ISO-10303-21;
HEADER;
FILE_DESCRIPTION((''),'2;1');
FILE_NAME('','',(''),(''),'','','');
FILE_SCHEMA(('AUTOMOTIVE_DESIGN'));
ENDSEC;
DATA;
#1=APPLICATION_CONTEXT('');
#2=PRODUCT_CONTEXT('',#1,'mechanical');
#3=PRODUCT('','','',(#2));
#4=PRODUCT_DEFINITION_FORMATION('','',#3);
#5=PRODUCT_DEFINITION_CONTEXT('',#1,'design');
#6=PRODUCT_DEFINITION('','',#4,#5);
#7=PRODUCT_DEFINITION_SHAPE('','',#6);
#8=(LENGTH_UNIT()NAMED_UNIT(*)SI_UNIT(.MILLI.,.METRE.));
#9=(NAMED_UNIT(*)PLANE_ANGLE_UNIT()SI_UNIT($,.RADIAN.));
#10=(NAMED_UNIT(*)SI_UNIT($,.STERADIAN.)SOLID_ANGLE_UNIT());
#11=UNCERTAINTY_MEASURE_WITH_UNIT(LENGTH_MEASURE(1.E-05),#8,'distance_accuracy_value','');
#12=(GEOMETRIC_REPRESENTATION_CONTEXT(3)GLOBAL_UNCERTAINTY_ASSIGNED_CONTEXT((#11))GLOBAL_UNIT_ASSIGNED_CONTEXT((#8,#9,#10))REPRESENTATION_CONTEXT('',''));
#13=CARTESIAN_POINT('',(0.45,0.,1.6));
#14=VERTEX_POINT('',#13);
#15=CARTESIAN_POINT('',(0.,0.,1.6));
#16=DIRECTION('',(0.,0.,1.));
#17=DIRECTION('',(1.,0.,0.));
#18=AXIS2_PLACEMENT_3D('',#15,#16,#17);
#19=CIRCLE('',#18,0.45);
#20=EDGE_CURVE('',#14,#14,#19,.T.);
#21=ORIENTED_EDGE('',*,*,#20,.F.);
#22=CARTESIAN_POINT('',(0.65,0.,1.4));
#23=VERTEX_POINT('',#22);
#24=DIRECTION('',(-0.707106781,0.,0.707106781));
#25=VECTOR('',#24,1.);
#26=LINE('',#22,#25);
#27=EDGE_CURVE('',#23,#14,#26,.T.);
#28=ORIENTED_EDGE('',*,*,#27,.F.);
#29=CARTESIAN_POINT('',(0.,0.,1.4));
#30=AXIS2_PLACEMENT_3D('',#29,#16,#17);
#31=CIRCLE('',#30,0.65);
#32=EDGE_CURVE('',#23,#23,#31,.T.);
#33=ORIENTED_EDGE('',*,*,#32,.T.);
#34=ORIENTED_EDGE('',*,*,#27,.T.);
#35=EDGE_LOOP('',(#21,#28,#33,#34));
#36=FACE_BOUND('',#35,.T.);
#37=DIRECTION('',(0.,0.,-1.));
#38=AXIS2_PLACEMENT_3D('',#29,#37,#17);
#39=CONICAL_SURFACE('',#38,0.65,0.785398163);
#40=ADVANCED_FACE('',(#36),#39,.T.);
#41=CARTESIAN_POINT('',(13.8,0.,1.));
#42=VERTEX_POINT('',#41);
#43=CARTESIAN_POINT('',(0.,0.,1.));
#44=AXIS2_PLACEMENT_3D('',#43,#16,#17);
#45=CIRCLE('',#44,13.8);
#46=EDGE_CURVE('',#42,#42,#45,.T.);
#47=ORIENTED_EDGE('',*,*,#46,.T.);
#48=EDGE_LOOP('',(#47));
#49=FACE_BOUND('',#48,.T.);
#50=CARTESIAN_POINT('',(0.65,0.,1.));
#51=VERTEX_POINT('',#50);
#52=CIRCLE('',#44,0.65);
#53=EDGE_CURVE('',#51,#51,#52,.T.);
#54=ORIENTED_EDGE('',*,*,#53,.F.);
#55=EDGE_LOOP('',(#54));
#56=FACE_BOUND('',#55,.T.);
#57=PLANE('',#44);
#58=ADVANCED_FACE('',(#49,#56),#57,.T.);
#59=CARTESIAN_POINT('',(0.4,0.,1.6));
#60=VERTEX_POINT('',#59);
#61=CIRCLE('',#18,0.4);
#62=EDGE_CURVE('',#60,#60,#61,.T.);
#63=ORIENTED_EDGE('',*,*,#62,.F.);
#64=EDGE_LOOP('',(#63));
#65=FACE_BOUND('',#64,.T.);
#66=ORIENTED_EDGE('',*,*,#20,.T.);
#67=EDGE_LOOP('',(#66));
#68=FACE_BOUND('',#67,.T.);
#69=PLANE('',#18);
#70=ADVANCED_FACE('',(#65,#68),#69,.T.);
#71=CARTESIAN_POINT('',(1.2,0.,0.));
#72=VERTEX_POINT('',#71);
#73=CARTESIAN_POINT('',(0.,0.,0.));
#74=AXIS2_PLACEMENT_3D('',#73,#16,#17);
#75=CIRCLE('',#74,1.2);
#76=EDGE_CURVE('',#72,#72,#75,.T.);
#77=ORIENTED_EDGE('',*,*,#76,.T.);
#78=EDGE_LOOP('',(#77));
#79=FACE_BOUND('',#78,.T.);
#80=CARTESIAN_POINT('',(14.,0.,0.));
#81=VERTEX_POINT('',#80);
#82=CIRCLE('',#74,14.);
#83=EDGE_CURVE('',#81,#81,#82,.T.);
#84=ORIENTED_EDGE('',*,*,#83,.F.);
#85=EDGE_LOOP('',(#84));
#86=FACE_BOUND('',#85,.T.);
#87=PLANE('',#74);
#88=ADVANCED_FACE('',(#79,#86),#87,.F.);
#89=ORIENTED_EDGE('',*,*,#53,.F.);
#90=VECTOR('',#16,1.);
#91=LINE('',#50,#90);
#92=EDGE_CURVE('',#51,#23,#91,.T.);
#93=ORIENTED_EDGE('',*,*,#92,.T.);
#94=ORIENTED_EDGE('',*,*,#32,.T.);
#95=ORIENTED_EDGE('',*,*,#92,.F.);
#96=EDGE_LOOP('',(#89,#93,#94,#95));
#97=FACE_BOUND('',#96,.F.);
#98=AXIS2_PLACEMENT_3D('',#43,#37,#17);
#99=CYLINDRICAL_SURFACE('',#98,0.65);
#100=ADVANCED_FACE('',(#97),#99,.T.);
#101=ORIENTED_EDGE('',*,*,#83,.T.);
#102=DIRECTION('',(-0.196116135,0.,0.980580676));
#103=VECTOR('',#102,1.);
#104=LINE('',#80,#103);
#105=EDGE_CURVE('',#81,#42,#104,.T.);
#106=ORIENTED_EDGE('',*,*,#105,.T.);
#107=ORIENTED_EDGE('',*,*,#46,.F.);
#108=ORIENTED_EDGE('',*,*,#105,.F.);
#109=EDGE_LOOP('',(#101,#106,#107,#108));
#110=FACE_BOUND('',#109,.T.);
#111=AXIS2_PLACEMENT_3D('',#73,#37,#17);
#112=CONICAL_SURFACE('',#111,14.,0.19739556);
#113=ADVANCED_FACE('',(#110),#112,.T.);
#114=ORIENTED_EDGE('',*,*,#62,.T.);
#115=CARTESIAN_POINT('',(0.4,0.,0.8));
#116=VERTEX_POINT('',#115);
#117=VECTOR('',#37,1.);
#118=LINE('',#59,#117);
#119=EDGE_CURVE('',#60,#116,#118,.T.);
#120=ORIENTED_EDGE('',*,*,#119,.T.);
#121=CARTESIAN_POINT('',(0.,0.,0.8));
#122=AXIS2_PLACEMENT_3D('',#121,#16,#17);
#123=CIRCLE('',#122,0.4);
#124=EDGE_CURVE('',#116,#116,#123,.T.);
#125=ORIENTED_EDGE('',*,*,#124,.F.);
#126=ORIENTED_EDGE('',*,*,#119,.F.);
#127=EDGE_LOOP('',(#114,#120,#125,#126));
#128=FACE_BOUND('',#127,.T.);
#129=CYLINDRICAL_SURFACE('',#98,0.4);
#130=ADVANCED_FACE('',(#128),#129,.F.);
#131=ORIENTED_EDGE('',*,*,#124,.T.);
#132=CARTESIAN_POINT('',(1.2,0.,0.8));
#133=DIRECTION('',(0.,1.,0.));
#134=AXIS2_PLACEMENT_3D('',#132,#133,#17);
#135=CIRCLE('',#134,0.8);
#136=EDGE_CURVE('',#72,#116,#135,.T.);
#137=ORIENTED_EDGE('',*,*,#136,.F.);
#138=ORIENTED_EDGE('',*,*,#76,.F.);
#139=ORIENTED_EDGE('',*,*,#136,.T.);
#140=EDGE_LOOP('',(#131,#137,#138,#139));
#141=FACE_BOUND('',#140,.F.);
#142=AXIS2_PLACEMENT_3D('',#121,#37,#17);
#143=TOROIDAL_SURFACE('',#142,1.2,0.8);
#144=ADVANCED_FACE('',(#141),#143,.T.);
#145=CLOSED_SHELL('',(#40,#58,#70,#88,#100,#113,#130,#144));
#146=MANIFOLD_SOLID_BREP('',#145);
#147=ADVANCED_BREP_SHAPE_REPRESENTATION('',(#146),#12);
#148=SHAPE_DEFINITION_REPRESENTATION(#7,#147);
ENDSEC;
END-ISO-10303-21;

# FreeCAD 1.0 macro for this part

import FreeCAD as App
import Part
import Sketcher
Q = App.Units.Quantity


def edges_at(feature, points):
    """Names of the edges that pass closest to the given points."""
    edges = feature.Shape.Edges
    near = lambda p: min(range(len(edges)), key=lambda i: edges[i].distToShape(Part.Vertex(*p))[0])
    return sorted({f"Edge{near(p) + 1}" for p in points})


def add_polygon(sketch, points):
    """Adds a closed chain of lines whose ends are joined by coincident constraints."""
    first, n = sketch.GeometryCount, len(points)
    for a, b in zip(points, points[1:] + points[:1]):
        sketch.addGeometry(Part.LineSegment(App.Vector(*a, 0), App.Vector(*b, 0)), False)
    for i in range(n):
        sketch.addConstraint(Sketcher.Constraint("Coincident", first + i, 2, first + (i + 1) % n, 1))

doc = App.newDocument("Part")
params = doc.addObject("Spreadsheet::Sheet", "Params")
for row, (alias, value) in enumerate([
    ("sketch1_diameter", "0.8 mm"),
    ("pad1_length", "0.6 mm"),
    ("sketch2_diameter", "1.3 mm"),
    ("pad2_length", "0.6 mm"),
    ("chamfer_size", "0.2 mm"),
    ("sketch3_diameter", "0.8 mm"),
    ("pad3_length", "1 mm"),
    ("sketch4_width", "14 mm"),
    ("sketch4_height", "1 mm"),
    ("sketch4_width2", "13.8 mm"),
    ("revolution_angle", "360 deg"),
    ("fillet_radius", "0.8 mm"),
], start=1):
    params.set(f"A{row}", alias)
    params.set(f"B{row}", "=" + value)
    params.setAlias(f"B{row}", alias)

body = doc.addObject("PartDesign::Body", "Body")

# Sketch on XY plane
sketch1 = body.newObject("Sketcher::SketchObject", "Sketch")
sketch1.AttachmentSupport = (doc.getObject("XY_Plane"), [""])
sketch1.MapMode = "FlatFace"
sketch1.AttachmentOffset = App.Placement(App.Vector(0, 0, 1), App.Rotation())
sketch1.addGeometry(Part.Circle(App.Vector(0, 0, 0), App.Vector(0, 0, 1), 0.4), False)
sketch1.addConstraint(Sketcher.Constraint("Coincident", 0, 3, -1, 1))
sketch1.addConstraint(Sketcher.Constraint("Diameter", 0, Q("0.8 mm")))
sketch1.setExpression("Constraints[1]", "Params.sketch1_diameter")
pad1 = body.newObject("PartDesign::Pad", "Pad")
pad1.Profile = sketch1
pad1.setExpression("Length", "Params.pad1_length")
body2 = doc.addObject("PartDesign::Body", "Body001")

# Sketch on XY plane
sketch2 = body2.newObject("Sketcher::SketchObject", "Sketch001")
sketch2.AttachmentSupport = (doc.getObject("XY_Plane001"), [""])
sketch2.MapMode = "FlatFace"
sketch2.AttachmentOffset = App.Placement(App.Vector(0, 0, 1), App.Rotation())
sketch2.addGeometry(Part.Circle(App.Vector(0, 0, 0), App.Vector(0, 0, 1), 0.7), False)
sketch2.addConstraint(Sketcher.Constraint("Coincident", 0, 3, -1, 1))
sketch2.addConstraint(Sketcher.Constraint("Diameter", 0, Q("1.3 mm")))
sketch2.setExpression("Constraints[1]", "Params.sketch2_diameter")
pad2 = body2.newObject("PartDesign::Pad", "Pad001")
pad2.Profile = sketch2
pad2.setExpression("Length", "Params.pad2_length")
doc.recompute()

boolean = body2.newObject("PartDesign::Boolean", "Boolean")
boolean.Type = "Cut"
boolean.addObjects([body])
doc.recompute()

chamfer = body2.newObject("PartDesign::Chamfer", "Chamfer")
chamfer.Base = (boolean, edges_at(boolean, [(-0.65, 0, 1.6)]))
chamfer.setExpression("Size", "Params.chamfer_size")
body3 = doc.addObject("PartDesign::Body", "Body002")

# Sketch on XY plane
sketch3 = body3.newObject("Sketcher::SketchObject", "Sketch002")
sketch3.AttachmentSupport = (doc.getObject("XY_Plane002"), [""])
sketch3.MapMode = "FlatFace"
sketch3.addGeometry(Part.Circle(App.Vector(0, 0, 0), App.Vector(0, 0, 1), 0.4), False)
sketch3.addConstraint(Sketcher.Constraint("Coincident", 0, 3, -1, 1))
sketch3.addConstraint(Sketcher.Constraint("Diameter", 0, Q("0.8 mm")))
sketch3.setExpression("Constraints[1]", "Params.sketch3_diameter")
pad3 = body3.newObject("PartDesign::Pad", "Pad002")
pad3.Profile = sketch3
pad3.setExpression("Length", "Params.pad3_length")
body4 = doc.addObject("PartDesign::Body", "Body003")

# Sketch on XZ plane
sketch4 = body4.newObject("Sketcher::SketchObject", "Sketch003")
sketch4.AttachmentSupport = (doc.getObject("XZ_Plane003"), [""])
sketch4.MapMode = "FlatFace"
add_polygon(sketch4, [(0, 0), (14, 0), (13.8, 1), (0, 1)])  # lines 0-3
sketch4.addConstraint(Sketcher.Constraint("Horizontal", 0))
sketch4.addConstraint(Sketcher.Constraint("Horizontal", 2))
sketch4.addConstraint(Sketcher.Constraint("Vertical", 3))
sketch4.addConstraint(Sketcher.Constraint("Coincident", 3, 2, -1, 1))
sketch4.addConstraint(Sketcher.Constraint("DistanceX", 0, 1, 0, 2, Q("14 mm")))
sketch4.addConstraint(Sketcher.Constraint("DistanceY", 3, 2, 3, 1, Q("1 mm")))
sketch4.addConstraint(Sketcher.Constraint("DistanceX", 2, 2, 2, 1, Q("13.8 mm")))
sketch4.setExpression("Constraints[8]", "Params.sketch4_width")
sketch4.setExpression("Constraints[9]", "Params.sketch4_height")
sketch4.setExpression("Constraints[10]", "Params.sketch4_width2")
revolution = body4.newObject("PartDesign::Revolution", "Revolution")
revolution.Profile = sketch4
revolution.ReferenceAxis = (sketch4, ["V_Axis"])
revolution.setExpression("Angle", "Params.revolution_angle")
doc.recompute()

boolean2 = body4.newObject("PartDesign::Boolean", "Boolean001")
boolean2.Type = "Cut"
boolean2.addObjects([body3])
doc.recompute()

fillet = body4.newObject("PartDesign::Fillet", "Fillet")
fillet.Base = (boolean2, edges_at(boolean2, [(-0.4, 0, 0)]))
fillet.setExpression("Radius", "Params.fillet_radius")
doc.recompute()

boolean3 = body4.newObject("PartDesign::Boolean", "Boolean002")
boolean3.Type = "Fuse"
boolean3.addObjects([body2])

doc.recompute()
